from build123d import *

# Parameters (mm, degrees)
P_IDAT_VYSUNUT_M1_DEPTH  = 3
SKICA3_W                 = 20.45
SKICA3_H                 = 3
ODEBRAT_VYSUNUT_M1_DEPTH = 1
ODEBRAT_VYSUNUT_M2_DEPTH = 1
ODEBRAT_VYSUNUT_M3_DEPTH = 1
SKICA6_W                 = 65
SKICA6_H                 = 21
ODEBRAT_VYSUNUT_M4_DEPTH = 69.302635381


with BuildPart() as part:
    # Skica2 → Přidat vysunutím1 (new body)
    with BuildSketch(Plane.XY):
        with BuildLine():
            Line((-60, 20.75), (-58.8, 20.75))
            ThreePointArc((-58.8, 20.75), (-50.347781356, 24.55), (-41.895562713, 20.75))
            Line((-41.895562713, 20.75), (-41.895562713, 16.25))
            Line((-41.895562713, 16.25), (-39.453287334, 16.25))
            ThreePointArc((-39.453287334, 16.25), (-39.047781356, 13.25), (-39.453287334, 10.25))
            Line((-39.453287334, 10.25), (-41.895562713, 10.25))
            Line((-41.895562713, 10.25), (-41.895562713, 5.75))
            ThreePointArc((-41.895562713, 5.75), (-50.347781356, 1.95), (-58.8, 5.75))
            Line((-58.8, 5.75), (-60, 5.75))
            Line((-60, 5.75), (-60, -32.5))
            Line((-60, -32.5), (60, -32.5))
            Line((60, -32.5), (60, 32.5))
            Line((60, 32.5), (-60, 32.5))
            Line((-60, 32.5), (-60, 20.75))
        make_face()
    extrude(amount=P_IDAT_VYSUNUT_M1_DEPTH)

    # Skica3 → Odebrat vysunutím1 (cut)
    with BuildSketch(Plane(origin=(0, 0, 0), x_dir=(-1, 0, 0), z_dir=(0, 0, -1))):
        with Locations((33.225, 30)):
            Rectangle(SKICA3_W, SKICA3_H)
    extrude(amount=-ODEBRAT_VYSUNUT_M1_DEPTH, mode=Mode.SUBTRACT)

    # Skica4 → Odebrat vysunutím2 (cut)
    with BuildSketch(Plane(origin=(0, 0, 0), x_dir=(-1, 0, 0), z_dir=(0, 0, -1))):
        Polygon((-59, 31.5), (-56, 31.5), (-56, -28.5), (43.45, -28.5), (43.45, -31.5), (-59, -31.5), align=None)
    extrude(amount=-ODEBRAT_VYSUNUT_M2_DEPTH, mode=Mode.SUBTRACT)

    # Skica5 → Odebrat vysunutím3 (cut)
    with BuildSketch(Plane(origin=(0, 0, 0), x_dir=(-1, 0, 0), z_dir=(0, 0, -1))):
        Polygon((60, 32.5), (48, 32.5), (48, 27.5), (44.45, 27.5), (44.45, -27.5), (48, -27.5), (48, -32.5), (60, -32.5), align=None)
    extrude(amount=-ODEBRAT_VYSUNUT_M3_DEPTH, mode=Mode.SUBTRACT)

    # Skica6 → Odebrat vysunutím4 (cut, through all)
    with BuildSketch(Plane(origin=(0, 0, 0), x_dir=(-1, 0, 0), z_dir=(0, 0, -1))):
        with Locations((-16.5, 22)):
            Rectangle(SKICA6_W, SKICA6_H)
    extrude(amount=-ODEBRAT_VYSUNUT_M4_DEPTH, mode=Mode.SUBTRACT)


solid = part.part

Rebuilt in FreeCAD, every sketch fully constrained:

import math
import FreeCAD as App
import Part
import Sketcher
from FreeCAD import Vector
Q = App.Units.Quantity


def add_polygon(sketch, points):
    """Adds a closed chain of lines whose ends are joined by coincident constraints."""
    first, n = sketch.GeometryCount, len(points)
    for a, b in zip(points, points[1:] + points[:1]):
        sketch.addGeometry(Part.LineSegment(App.Vector(*a, 0), App.Vector(*b, 0)), False)
    for i in range(n):
        sketch.addConstraint(Sketcher.Constraint("Coincident", first + i, 2, first + (i + 1) % n, 1))

doc = App.newDocument("Part")
body = doc.addObject("PartDesign::Body", "Body")

# Sketch on XY plane
sketch1 = body.newObject("Sketcher::SketchObject", "Sketch")
sketch1.AttachmentSupport = (doc.getObject("XY_Plane"), [""])
sketch1.MapMode = "FlatFace"
sketch1.addGeometry([
    Part.LineSegment(Vector(-60, 20.8, 0), Vector(-58.8, 20.8, 0)),  # 0
    Part.ArcOfCircle(Part.Circle(Vector(-50.3, 13.2, 0), Vector(0, 0, 1), 11.3), math.radians(42), math.radians(138)),  # 1
    Part.LineSegment(Vector(-41.9, 20.8, 0), Vector(-41.9, 16.2, 0)),  # 2
    Part.LineSegment(Vector(-41.9, 16.2, 0), Vector(-39.5, 16.2, 0)),  # 3
    Part.ArcOfCircle(Part.Circle(Vector(-50.3, 13.2, 0), Vector(0, 0, 1), 11.3), math.radians(-15), math.radians(15)),  # 4
    Part.LineSegment(Vector(-39.5, 10.2, 0), Vector(-41.9, 10.2, 0)),  # 5
    Part.LineSegment(Vector(-41.9, 10.2, 0), Vector(-41.9, 5.8, 0)),  # 6
    Part.ArcOfCircle(Part.Circle(Vector(-50.3, 13.2, 0), Vector(0, 0, 1), 11.3), math.radians(-138), math.radians(-42)),  # 7
    Part.LineSegment(Vector(-58.8, 5.8, 0), Vector(-60, 5.8, 0)),  # 8
    Part.LineSegment(Vector(-60, 5.8, 0), Vector(-60, -32.5, 0)),  # 9
    Part.LineSegment(Vector(-60, -32.5, 0), Vector(60, -32.5, 0)),  # 10
    Part.LineSegment(Vector(60, -32.5, 0), Vector(60, 32.5, 0)),  # 11
    Part.LineSegment(Vector(60, 32.5, 0), Vector(-60, 32.5, 0)),  # 12
    Part.LineSegment(Vector(-60, 32.5, 0), Vector(-60, 20.8, 0)),  # 13
], False)
sketch1.addConstraint([
    Sketcher.Constraint("Coincident", 0, 2, 1, 2),
    Sketcher.Constraint("Coincident", 1, 1, 2, 1),
    Sketcher.Constraint("Coincident", 2, 2, 3, 1),
    Sketcher.Constraint("Coincident", 3, 2, 4, 2),
    Sketcher.Constraint("Coincident", 4, 1, 5, 1),
    Sketcher.Constraint("Coincident", 5, 2, 6, 1),
    Sketcher.Constraint("Coincident", 6, 2, 7, 2),
    Sketcher.Constraint("Coincident", 7, 1, 8, 1),
    Sketcher.Constraint("Coincident", 8, 2, 9, 1),
    Sketcher.Constraint("Coincident", 9, 2, 10, 1),
    Sketcher.Constraint("Coincident", 10, 2, 11, 1),
    Sketcher.Constraint("Coincident", 11, 2, 12, 1),
    Sketcher.Constraint("Coincident", 12, 2, 13, 1),
    Sketcher.Constraint("Coincident", 13, 2, 0, 1),
    Sketcher.Constraint("Horizontal", 0),
    Sketcher.Constraint("Vertical", 2),
    Sketcher.Constraint("Horizontal", 3),
    Sketcher.Constraint("Horizontal", 5),
    Sketcher.Constraint("Vertical", 6),
    Sketcher.Constraint("Horizontal", 8),
    Sketcher.Constraint("Vertical", 9),
    Sketcher.Constraint("Horizontal", 10),
    Sketcher.Constraint("Vertical", 11),
    Sketcher.Constraint("Horizontal", 12),
    Sketcher.Constraint("Vertical", 13),
    Sketcher.Constraint("Coincident", 4, 3, 1, 3),
    Sketcher.Constraint("Coincident", 7, 3, 1, 3),
    Sketcher.Constraint("Equal", 1, 4),
    Sketcher.Constraint("Equal", 4, 7),
    Sketcher.Constraint("Symmetric", 9, 2, 11, 2, -1, 1),
    Sketcher.Constraint("Horizontal", 0, 2, 1, 1),
    Sketcher.Constraint("Horizontal", 6, 2, 7, 1),
    Sketcher.Constraint("Vertical", 3, 2, 4, 1),
    Sketcher.Constraint("Vertical", 2, 2, 5, 2),
    Sketcher.Constraint("Vertical", 9, 2, 12, 2),
    Sketcher.Constraint("Radius", 1, Q("11.3 mm")),
    Sketcher.Constraint("DistanceX", 10, 1, 10, 2, Q("120 mm")),
    Sketcher.Constraint("DistanceY", 11, 1, 11, 2, Q("65 mm")),
    Sketcher.Constraint("DistanceX", 0, 1, 0, 2, Q("1.2 mm")),
    Sketcher.Constraint("DistanceY", 2, 2, 2, 1, Q("4.5 mm")),
    Sketcher.Constraint("DistanceY", 4, 3, 2, 2, Q("3 mm")),
    Sketcher.Constraint("DistanceY", 9, 2, 9, 1, Q("38.25 mm")),
])
pad1 = body.newObject("PartDesign::Pad", "Pad")
pad1.Profile = sketch1
pad1.Length = 3

# Sketch on XY plane
sketch2 = body.newObject("Sketcher::SketchObject", "Sketch001")
sketch2.AttachmentSupport = (doc.getObject("XY_Plane"), [""])
sketch2.MapMode = "FlatFace"
add_polygon(sketch2, [(-23, 31.5), (-23, 28.5), (-43.5, 28.5), (-43.5, 31.5)])  # lines 0-3
sketch2.addConstraint([
    Sketcher.Constraint("Vertical", 0),
    Sketcher.Constraint("Horizontal", 1),
    Sketcher.Constraint("Vertical", 2),
    Sketcher.Constraint("Horizontal", 3),
    Sketcher.Constraint("DistanceY", 0, 2, 0, 1, Q("3 mm")),
    Sketcher.Constraint("DistanceX", 0, 2, -1, 1, Q("23 mm")),
    Sketcher.Constraint("DistanceX", 1, 2, 1, 1, Q("20.45 mm")),
    Sketcher.Constraint("DistanceY", -1, 1, 0, 2, Q("28.5 mm")),
])
pocket1 = body.newObject("PartDesign::Pocket", "Pocket")
pocket1.Profile = sketch2
pocket1.Length = 1
pocket1.Reversed = True

# Sketch on XY plane
sketch3 = body.newObject("Sketcher::SketchObject", "Sketch002")
sketch3.AttachmentSupport = (doc.getObject("XY_Plane"), [""])
sketch3.MapMode = "FlatFace"
add_polygon(sketch3, [(56, 31.5), (59, 31.5), (59, -31.5), (-43.5, -31.5), (-43.5, -28.5), (56, -28.5)])  # lines 0-5
sketch3.addConstraint([
    Sketcher.Constraint("Horizontal", 0),
    Sketcher.Constraint("Vertical", 1),
    Sketcher.Constraint("Horizontal", 2),
    Sketcher.Constraint("Vertical", 3),
    Sketcher.Constraint("Horizontal", 4),
    Sketcher.Constraint("Vertical", 5),
    Sketcher.Constraint("Equal", 0, 3),
    Sketcher.Constraint("DistanceX", 0, 1, 0, 2, Q("3 mm")),
    Sketcher.Constraint("DistanceY", 1, 2, 1, 1, Q("63 mm")),
    Sketcher.Constraint("DistanceX", -1, 1, 0, 2, Q("59 mm")),
    Sketcher.Constraint("DistanceX", 2, 2, 2, 1, Q("102.45 mm")),
    Sketcher.Constraint("DistanceY", -1, 1, 0, 2, Q("31.5 mm")),
])
pocket2 = body.newObject("PartDesign::Pocket", "Pocket001")
pocket2.Profile = sketch3
pocket2.Length = 1
pocket2.Reversed = True

# Sketch on XY plane
sketch4 = body.newObject("Sketcher::SketchObject", "Sketch003")
sketch4.AttachmentSupport = (doc.getObject("XY_Plane"), [""])
sketch4.MapMode = "FlatFace"
add_polygon(sketch4, [(-60, 32.5), (-48, 32.5), (-48, 27.5), (-44.5, 27.5), (-44.5, -27.5), (-48, -27.5), (-48, -32.5), (-60, -32.5)])  # lines 0-7
sketch4.addConstraint([
    Sketcher.Constraint("Horizontal", 0),
    Sketcher.Constraint("Vertical", 1),
    Sketcher.Constraint("Horizontal", 2),
    Sketcher.Constraint("Vertical", 3),
    Sketcher.Constraint("Horizontal", 4),
    Sketcher.Constraint("Vertical", 5),
    Sketcher.Constraint("Horizontal", 6),
    Sketcher.Constraint("Vertical", 7),
    Sketcher.Constraint("Symmetric", 1, 2, 4, 2, -1),
    Sketcher.Constraint("Equal", 1, 5),
    Sketcher.Constraint("DistanceX", 0, 1, 0, 2, Q("12 mm")),
    Sketcher.Constraint("DistanceY", 1, 2, 1, 1, Q("5 mm")),
    Sketcher.Constraint("DistanceY", 3, 2, 3, 1, Q("55 mm")),
    Sketcher.Constraint("DistanceX", 0, 2, -1, 1, Q("48 mm")),
    Sketcher.Constraint("DistanceX", 2, 1, 2, 2, Q("3.55 mm")),
])
pocket3 = body.newObject("PartDesign::Pocket", "Pocket002")
pocket3.Profile = sketch4
pocket3.Length = 1
pocket3.Reversed = True

# Sketch on XY plane
sketch5 = body.newObject("Sketcher::SketchObject", "Sketch004")
sketch5.AttachmentSupport = (doc.getObject("XY_Plane"), [""])
sketch5.MapMode = "FlatFace"
add_polygon(sketch5, [(49, 32), (49, 12), (-16, 12), (-16, 32)])  # lines 0-3
sketch5.addConstraint([
    Sketcher.Constraint("Vertical", 0),
    Sketcher.Constraint("Horizontal", 1),
    Sketcher.Constraint("Vertical", 2),
    Sketcher.Constraint("Horizontal", 3),
    Sketcher.Constraint("DistanceX", 1, 2, 1, 1, Q("65 mm")),
    Sketcher.Constraint("DistanceY", 0, 2, 0, 1, Q("21 mm")),
    Sketcher.Constraint("DistanceX", -1, 1, 0, 2, Q("49 mm")),
    Sketcher.Constraint("DistanceY", -1, 1, 0, 2, Q("11.5 mm")),
])
pocket4 = body.newObject("PartDesign::Pocket", "Pocket003")
pocket4.Profile = sketch5
pocket4.Type = "ThroughAll"
pocket4.Reversed = True

doc.recompute()
